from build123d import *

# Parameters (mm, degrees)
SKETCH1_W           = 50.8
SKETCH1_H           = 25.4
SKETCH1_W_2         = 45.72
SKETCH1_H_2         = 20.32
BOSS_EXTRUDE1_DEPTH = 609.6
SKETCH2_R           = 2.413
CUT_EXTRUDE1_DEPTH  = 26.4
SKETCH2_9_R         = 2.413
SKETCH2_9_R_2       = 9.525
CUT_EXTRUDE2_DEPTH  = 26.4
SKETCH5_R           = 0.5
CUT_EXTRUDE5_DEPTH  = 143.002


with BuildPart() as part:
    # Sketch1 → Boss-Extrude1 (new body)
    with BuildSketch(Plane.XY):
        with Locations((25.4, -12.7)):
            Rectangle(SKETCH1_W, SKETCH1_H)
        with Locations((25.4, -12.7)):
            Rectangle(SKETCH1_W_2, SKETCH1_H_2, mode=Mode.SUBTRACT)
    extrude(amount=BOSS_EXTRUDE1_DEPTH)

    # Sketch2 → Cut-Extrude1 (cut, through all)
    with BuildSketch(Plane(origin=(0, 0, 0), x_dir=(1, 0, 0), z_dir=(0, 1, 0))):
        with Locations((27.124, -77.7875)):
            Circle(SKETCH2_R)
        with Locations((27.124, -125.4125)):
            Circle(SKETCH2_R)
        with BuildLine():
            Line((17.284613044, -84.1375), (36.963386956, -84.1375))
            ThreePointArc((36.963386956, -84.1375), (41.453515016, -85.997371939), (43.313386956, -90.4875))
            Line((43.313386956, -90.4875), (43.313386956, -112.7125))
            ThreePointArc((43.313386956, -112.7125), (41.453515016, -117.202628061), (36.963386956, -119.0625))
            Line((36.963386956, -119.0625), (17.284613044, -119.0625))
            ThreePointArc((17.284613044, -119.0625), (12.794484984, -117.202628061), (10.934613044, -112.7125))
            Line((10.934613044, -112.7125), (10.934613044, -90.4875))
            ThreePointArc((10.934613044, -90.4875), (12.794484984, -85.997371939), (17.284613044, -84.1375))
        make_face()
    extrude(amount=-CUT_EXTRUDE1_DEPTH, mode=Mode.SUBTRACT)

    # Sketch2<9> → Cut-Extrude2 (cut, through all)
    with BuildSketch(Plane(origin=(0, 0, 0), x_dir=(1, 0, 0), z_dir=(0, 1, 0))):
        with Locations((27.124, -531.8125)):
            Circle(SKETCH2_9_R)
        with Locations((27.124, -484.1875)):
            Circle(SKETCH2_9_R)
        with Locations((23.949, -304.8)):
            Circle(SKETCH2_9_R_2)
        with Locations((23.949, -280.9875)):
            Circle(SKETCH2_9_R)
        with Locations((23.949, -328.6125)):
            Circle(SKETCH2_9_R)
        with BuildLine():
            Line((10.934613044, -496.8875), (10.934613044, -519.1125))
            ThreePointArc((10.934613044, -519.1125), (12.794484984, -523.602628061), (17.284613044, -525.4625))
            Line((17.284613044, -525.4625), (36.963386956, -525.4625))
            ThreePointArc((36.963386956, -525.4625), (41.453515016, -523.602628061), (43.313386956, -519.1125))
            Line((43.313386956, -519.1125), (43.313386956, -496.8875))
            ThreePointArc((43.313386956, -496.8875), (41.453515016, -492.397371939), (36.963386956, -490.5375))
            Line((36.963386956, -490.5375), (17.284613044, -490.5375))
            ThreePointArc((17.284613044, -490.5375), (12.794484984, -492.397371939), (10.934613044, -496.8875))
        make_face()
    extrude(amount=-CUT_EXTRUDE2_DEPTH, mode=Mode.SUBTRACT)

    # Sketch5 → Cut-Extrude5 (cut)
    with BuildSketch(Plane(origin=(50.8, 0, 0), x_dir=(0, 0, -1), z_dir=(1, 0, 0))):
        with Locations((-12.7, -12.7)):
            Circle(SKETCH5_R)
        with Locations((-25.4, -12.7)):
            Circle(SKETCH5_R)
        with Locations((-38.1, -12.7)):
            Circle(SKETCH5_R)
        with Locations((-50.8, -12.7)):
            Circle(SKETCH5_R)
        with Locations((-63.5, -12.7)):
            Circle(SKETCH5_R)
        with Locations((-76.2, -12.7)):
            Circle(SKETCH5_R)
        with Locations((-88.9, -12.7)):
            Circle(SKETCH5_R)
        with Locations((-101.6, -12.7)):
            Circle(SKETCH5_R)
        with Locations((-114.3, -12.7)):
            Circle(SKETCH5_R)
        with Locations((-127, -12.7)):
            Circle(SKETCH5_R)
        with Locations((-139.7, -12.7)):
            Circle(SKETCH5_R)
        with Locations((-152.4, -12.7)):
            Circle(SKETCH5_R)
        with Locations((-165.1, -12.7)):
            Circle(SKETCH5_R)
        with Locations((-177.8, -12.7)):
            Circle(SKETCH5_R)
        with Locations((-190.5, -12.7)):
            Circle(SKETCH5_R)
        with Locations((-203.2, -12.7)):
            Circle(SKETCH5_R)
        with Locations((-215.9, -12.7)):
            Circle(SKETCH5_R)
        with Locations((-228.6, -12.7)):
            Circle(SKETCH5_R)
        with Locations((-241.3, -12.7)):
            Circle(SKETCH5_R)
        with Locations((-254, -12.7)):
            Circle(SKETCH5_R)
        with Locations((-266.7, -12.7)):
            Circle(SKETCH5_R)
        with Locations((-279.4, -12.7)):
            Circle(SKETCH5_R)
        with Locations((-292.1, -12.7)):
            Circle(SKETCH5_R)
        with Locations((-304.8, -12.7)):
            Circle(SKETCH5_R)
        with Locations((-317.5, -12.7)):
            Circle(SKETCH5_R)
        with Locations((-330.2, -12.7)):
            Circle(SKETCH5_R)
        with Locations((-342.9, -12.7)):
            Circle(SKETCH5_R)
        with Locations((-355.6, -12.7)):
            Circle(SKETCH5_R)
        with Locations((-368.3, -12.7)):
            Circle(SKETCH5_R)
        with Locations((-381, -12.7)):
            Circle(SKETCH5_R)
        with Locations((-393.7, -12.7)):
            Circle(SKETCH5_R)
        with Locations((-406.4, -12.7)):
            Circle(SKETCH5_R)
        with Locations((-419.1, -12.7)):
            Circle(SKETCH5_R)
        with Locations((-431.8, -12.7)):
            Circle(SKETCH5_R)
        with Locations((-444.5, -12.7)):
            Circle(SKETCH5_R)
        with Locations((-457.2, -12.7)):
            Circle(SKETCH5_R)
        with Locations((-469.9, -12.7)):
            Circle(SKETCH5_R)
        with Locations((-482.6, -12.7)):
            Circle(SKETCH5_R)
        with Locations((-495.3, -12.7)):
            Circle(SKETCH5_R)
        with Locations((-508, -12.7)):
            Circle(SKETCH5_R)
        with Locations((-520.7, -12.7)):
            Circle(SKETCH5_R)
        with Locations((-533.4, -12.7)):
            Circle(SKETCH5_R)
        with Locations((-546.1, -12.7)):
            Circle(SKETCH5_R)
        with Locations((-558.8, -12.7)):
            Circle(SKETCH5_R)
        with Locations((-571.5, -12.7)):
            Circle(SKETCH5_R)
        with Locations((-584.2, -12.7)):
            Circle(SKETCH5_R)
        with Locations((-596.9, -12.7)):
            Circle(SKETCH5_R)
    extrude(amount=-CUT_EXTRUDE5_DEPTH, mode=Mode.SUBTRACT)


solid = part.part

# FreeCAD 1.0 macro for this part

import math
import FreeCAD as App
import Part
import Sketcher

V = App.Vector
Q = App.Units.Quantity


def add_polygon(sketch, points):
    """Adds a closed chain of lines whose ends are joined by coincident constraints."""
    first, n = sketch.GeometryCount, len(points)
    for a, b in zip(points, points[1:] + points[:1]):
        sketch.addGeometry(Part.LineSegment(App.Vector(*a, 0), App.Vector(*b, 0)), False)
    for i in range(n):
        sketch.addConstraint(Sketcher.Constraint("Coincident", first + i, 2, first + (i + 1) % n, 1))

doc = App.newDocument("Part")
body = doc.addObject("PartDesign::Body", "Body")

# Sketch on XY plane
sketch1 = doc.addObject("Sketcher::SketchObject", "Sketch")
body.addObject(sketch1)
sketch1.AttachmentSupport = (doc.XY_Plane, [""])
sketch1.MapMode = "FlatFace"
add_polygon(sketch1, [(0, 0), (0, -25), (51, -25), (51, 0)])  # lines 0-3
add_polygon(sketch1, [(48, -23), (3, -23), (3, -3), (48, -3)])  # lines 4-7
sketch1.addConstraint([
    Sketcher.Constraint("Vertical", 0),
    Sketcher.Constraint("Horizontal", 1),
    Sketcher.Constraint("Vertical", 2),
    Sketcher.Constraint("Horizontal", 3),
    Sketcher.Constraint("Horizontal", 4),
    Sketcher.Constraint("Vertical", 5),
    Sketcher.Constraint("Horizontal", 6),
    Sketcher.Constraint("Vertical", 7),
    Sketcher.Constraint("Coincident", 3, 2, -1, 1),
    Sketcher.Constraint("DistanceX", 1, 1, 1, 2, Q("2 in")),
    Sketcher.Constraint("DistanceY", 0, 2, 0, 1, Q("1 in")),
    Sketcher.Constraint("DistanceX", 4, 2, 4, 1, Q("1.8 in")),
    Sketcher.Constraint("DistanceY", 5, 1, 5, 2, Q("0.8 in")),
    Sketcher.Constraint("DistanceX", -1, 1, 4, 2, Q("0.1 in")),
    Sketcher.Constraint("DistanceY", 4, 2, -1, 1, Q("0.9 in")),
])
pad1 = doc.addObject("PartDesign::Pad", "Pad")
body.addObject(pad1)
pad1.Profile = sketch1
pad1.Length = Q("24 in")

# Sketch on XZ plane
sketch2 = doc.addObject("Sketcher::SketchObject", "Sketch001")
body.addObject(sketch2)
sketch2.AttachmentSupport = (doc.XZ_Plane, [""])
sketch2.MapMode = "FlatFace"
sketch2.addGeometry([
    Part.Circle(V(27.1, 77.8, 0), V(0, 0, 1), 2.4),  # 0
    Part.Circle(V(27.1, 125.4, 0), V(0, 0, 1), 2.4),  # 1
    Part.LineSegment(V(37, 84.1, 0), V(17.3, 84.1, 0)),  # 2
    Part.ArcOfCircle(Part.Circle(V(17.3, 90.5, 0), V(0, 0, 1), 6.3), math.radians(180), math.radians(270)),  # 3
    Part.LineSegment(V(10.9, 90.5, 0), V(10.9, 112.7, 0)),  # 4
    Part.ArcOfCircle(Part.Circle(V(17.3, 112.7, 0), V(0, 0, 1), 6.3), math.radians(90), math.radians(180)),  # 5
    Part.LineSegment(V(17.3, 119.1, 0), V(37, 119.1, 0)),  # 6
    Part.ArcOfCircle(Part.Circle(V(37, 112.7, 0), V(0, 0, 1), 6.3), math.radians(0), math.radians(90)),  # 7
    Part.LineSegment(V(43.3, 112.7, 0), V(43.3, 90.5, 0)),  # 8
    Part.ArcOfCircle(Part.Circle(V(37, 90.5, 0), V(0, 0, 1), 6.3), math.radians(-90), math.radians(0)),  # 9
], False)
sketch2.addConstraint([
    Sketcher.Constraint("Tangent", 2, 2, 3, 2),
    Sketcher.Constraint("Tangent", 3, 1, 4, 1),
    Sketcher.Constraint("Tangent", 4, 2, 5, 2),
    Sketcher.Constraint("Tangent", 5, 1, 6, 1),
    Sketcher.Constraint("Tangent", 6, 2, 7, 2),
    Sketcher.Constraint("Tangent", 7, 1, 8, 1),
    Sketcher.Constraint("Tangent", 8, 2, 9, 2),
    Sketcher.Constraint("Tangent", 9, 1, 2, 1),
    Sketcher.Constraint("Horizontal", 2),
    Sketcher.Constraint("Vertical", 4),
    Sketcher.Constraint("Horizontal", 6),
    Sketcher.Constraint("Vertical", 8),
    Sketcher.Constraint("Equal", 0, 1),
    Sketcher.Constraint("Equal", 3, 5),
    Sketcher.Constraint("Equal", 5, 7),
    Sketcher.Constraint("Equal", 7, 9),
    Sketcher.Constraint("Vertical", 0, 3, 1, 3),
    Sketcher.Constraint("Diameter", 0, Q("0.19 in")),
    Sketcher.Constraint("Radius", 3, Q("0.25 in")),
    Sketcher.Constraint("DistanceY", 0, 3, 3, 3, Q("0.5 in")),
    Sketcher.Constraint("DistanceY", 5, 3, 1, 3, Q("0.5 in")),
    Sketcher.Constraint("DistanceY", 4, 1, 4, 2, Q("0.875 in")),
    Sketcher.Constraint("DistanceY", -1, 1, 0, 3, Q("3.0625 in")),
    Sketcher.Constraint("DistanceX", -1, 1, 0, 3, 27.124),
    Sketcher.Constraint("DistanceX", 2, 2, 2, 1, 19.678774),
    Sketcher.Constraint("DistanceX", -1, 1, 3, 3, 17.284613),
])
pocket1 = doc.addObject("PartDesign::Pocket", "Pocket")
body.addObject(pocket1)
pocket1.Profile = sketch2
pocket1.Type = "ThroughAll"
pocket1.Reversed = True

# Sketch on XZ plane
sketch3 = doc.addObject("Sketcher::SketchObject", "Sketch002")
body.addObject(sketch3)
sketch3.AttachmentSupport = (doc.XZ_Plane, [""])
sketch3.MapMode = "FlatFace"
sketch3.addGeometry([
    Part.Circle(V(27.1, 531.8, 0), V(0, 0, 1), 2.4),  # 0
    Part.Circle(V(27.1, 484.2, 0), V(0, 0, 1), 2.4),  # 1
    Part.Circle(V(23.9, 304.8, 0), V(0, 0, 1), 9.5),  # 2
    Part.Circle(V(23.9, 281, 0), V(0, 0, 1), 2.4),  # 3
    Part.Circle(V(23.9, 328.6, 0), V(0, 0, 1), 2.4),  # 4
    Part.LineSegment(V(10.9, 496.9, 0), V(10.9, 519.1, 0)),  # 5
    Part.ArcOfCircle(Part.Circle(V(17.3, 519.1, 0), V(0, 0, 1), 6.3), math.radians(90), math.radians(180)),  # 6
    Part.LineSegment(V(17.3, 525.5, 0), V(37, 525.5, 0)),  # 7
    Part.ArcOfCircle(Part.Circle(V(37, 519.1, 0), V(0, 0, 1), 6.3), math.radians(0), math.radians(90)),  # 8
    Part.LineSegment(V(43.3, 519.1, 0), V(43.3, 496.9, 0)),  # 9
    Part.ArcOfCircle(Part.Circle(V(37, 496.9, 0), V(0, 0, 1), 6.3), math.radians(-90), math.radians(0)),  # 10
    Part.LineSegment(V(37, 490.5, 0), V(17.3, 490.5, 0)),  # 11
    Part.ArcOfCircle(Part.Circle(V(17.3, 496.9, 0), V(0, 0, 1), 6.3), math.radians(180), math.radians(270)),  # 12
], False)
sketch3.addConstraint([
    Sketcher.Constraint("Tangent", 5, 2, 6, 2),
    Sketcher.Constraint("Tangent", 6, 1, 7, 1),
    Sketcher.Constraint("Tangent", 7, 2, 8, 2),
    Sketcher.Constraint("Tangent", 8, 1, 9, 1),
    Sketcher.Constraint("Tangent", 9, 2, 10, 2),
    Sketcher.Constraint("Tangent", 10, 1, 11, 1),
    Sketcher.Constraint("Tangent", 11, 2, 12, 2),
    Sketcher.Constraint("Tangent", 12, 1, 5, 1),
    Sketcher.Constraint("Vertical", 5),
    Sketcher.Constraint("Horizontal", 7),
    Sketcher.Constraint("Vertical", 9),
    Sketcher.Constraint("Horizontal", 11),
    Sketcher.Constraint("Equal", 0, 1),
    Sketcher.Constraint("Equal", 1, 3),
    Sketcher.Constraint("Equal", 3, 4),
    Sketcher.Constraint("Equal", 6, 8),
    Sketcher.Constraint("Equal", 8, 10),
    Sketcher.Constraint("Equal", 10, 12),
    Sketcher.Constraint("Vertical", 0, 3, 1, 3),
    Sketcher.Constraint("Vertical", 2, 3, 3, 3),
    Sketcher.Constraint("Vertical", 3, 3, 4, 3),
    Sketcher.Constraint("Diameter", 0, Q("0.19 in")),
    Sketcher.Constraint("Diameter", 2, Q("0.75 in")),
    Sketcher.Constraint("Radius", 6, Q("0.25 in")),
    Sketcher.Constraint("DistanceY", -1, 1, 2, 3, Q("12 in")),
    Sketcher.Constraint("DistanceY", 3, 3, 1, 3, Q("8 in")),
    Sketcher.Constraint("DistanceY", 4, 3, 0, 3, Q("8 in")),
    Sketcher.Constraint("DistanceY", 6, 3, 0, 3, Q("0.5 in")),
    Sketcher.Constraint("DistanceY", 1, 3, 10, 3, Q("0.5 in")),
    Sketcher.Constraint("DistanceY", 5, 1, 5, 2, Q("0.875 in")),
    Sketcher.Constraint("DistanceY", -1, 1, 0, 3, Q("20.9375 in")),
    Sketcher.Constraint("DistanceX", 2, 3, 1, 3, Q("0.125 in")),
    Sketcher.Constraint("DistanceX", -1, 1, 0, 3, 27.124),
    Sketcher.Constraint("DistanceX", 7, 1, 7, 2, 19.678774),
    Sketcher.Constraint("DistanceX", -1, 1, 6, 3, 17.284613),
])
pocket2 = doc.addObject("PartDesign::Pocket", "Pocket001")
body.addObject(pocket2)
pocket2.Profile = sketch3
pocket2.Type = "ThroughAll"
pocket2.Reversed = True

# Sketch on YZ plane
sketch4 = doc.addObject("Sketcher::SketchObject", "Sketch003")
body.addObject(sketch4)
sketch4.AttachmentSupport = (doc.YZ_Plane, [""])
sketch4.MapMode = "FlatFace"
sketch4.AttachmentOffset = App.Placement(V(0, 0, 2 * 25.4), App.Rotation())
sketch4.addGeometry([
    Part.Circle(V(-12.7, 12.7, 0), V(0, 0, 1), 0.5),  # 0
    Part.Circle(V(-12.7, 25.4, 0), V(0, 0, 1), 0.5),  # 1
    Part.Circle(V(-12.7, 38.1, 0), V(0, 0, 1), 0.5),  # 2
    Part.Circle(V(-12.7, 50.8, 0), V(0, 0, 1), 0.5),  # 3
    Part.Circle(V(-12.7, 63.5, 0), V(0, 0, 1), 0.5),  # 4
    Part.Circle(V(-12.7, 76.2, 0), V(0, 0, 1), 0.5),  # 5
    Part.Circle(V(-12.7, 88.9, 0), V(0, 0, 1), 0.5),  # 6
    Part.Circle(V(-12.7, 101.6, 0), V(0, 0, 1), 0.5),  # 7
    Part.Circle(V(-12.7, 114.3, 0), V(0, 0, 1), 0.5),  # 8
    Part.Circle(V(-12.7, 127, 0), V(0, 0, 1), 0.5),  # 9
    Part.Circle(V(-12.7, 139.7, 0), V(0, 0, 1), 0.5),  # 10
    Part.Circle(V(-12.7, 152.4, 0), V(0, 0, 1), 0.5),  # 11
    Part.Circle(V(-12.7, 165.1, 0), V(0, 0, 1), 0.5),  # 12
    Part.Circle(V(-12.7, 177.8, 0), V(0, 0, 1), 0.5),  # 13
    Part.Circle(V(-12.7, 190.5, 0), V(0, 0, 1), 0.5),  # 14
    Part.Circle(V(-12.7, 203.2, 0), V(0, 0, 1), 0.5),  # 15
    Part.Circle(V(-12.7, 215.9, 0), V(0, 0, 1), 0.5),  # 16
    Part.Circle(V(-12.7, 228.6, 0), V(0, 0, 1), 0.5),  # 17
    Part.Circle(V(-12.7, 241.3, 0), V(0, 0, 1), 0.5),  # 18
    Part.Circle(V(-12.7, 254, 0), V(0, 0, 1), 0.5),  # 19
    Part.Circle(V(-12.7, 266.7, 0), V(0, 0, 1), 0.5),  # 20
    Part.Circle(V(-12.7, 279.4, 0), V(0, 0, 1), 0.5),  # 21
    Part.Circle(V(-12.7, 292.1, 0), V(0, 0, 1), 0.5),  # 22
    Part.Circle(V(-12.7, 304.8, 0), V(0, 0, 1), 0.5),  # 23
    Part.Circle(V(-12.7, 317.5, 0), V(0, 0, 1), 0.5),  # 24
    Part.Circle(V(-12.7, 330.2, 0), V(0, 0, 1), 0.5),  # 25
    Part.Circle(V(-12.7, 342.9, 0), V(0, 0, 1), 0.5),  # 26
    Part.Circle(V(-12.7, 355.6, 0), V(0, 0, 1), 0.5),  # 27
    Part.Circle(V(-12.7, 368.3, 0), V(0, 0, 1), 0.5),  # 28
    Part.Circle(V(-12.7, 381, 0), V(0, 0, 1), 0.5),  # 29
    Part.Circle(V(-12.7, 393.7, 0), V(0, 0, 1), 0.5),  # 30
    Part.Circle(V(-12.7, 406.4, 0), V(0, 0, 1), 0.5),  # 31
    Part.Circle(V(-12.7, 419.1, 0), V(0, 0, 1), 0.5),  # 32
    Part.Circle(V(-12.7, 431.8, 0), V(0, 0, 1), 0.5),  # 33
    Part.Circle(V(-12.7, 444.5, 0), V(0, 0, 1), 0.5),  # 34
    Part.Circle(V(-12.7, 457.2, 0), V(0, 0, 1), 0.5),  # 35
    Part.Circle(V(-12.7, 469.9, 0), V(0, 0, 1), 0.5),  # 36
    Part.Circle(V(-12.7, 482.6, 0), V(0, 0, 1), 0.5),  # 37
    Part.Circle(V(-12.7, 495.3, 0), V(0, 0, 1), 0.5),  # 38
    Part.Circle(V(-12.7, 508, 0), V(0, 0, 1), 0.5),  # 39
    Part.Circle(V(-12.7, 520.7, 0), V(0, 0, 1), 0.5),  # 40
    Part.Circle(V(-12.7, 533.4, 0), V(0, 0, 1), 0.5),  # 41
    Part.Circle(V(-12.7, 546.1, 0), V(0, 0, 1), 0.5),  # 42
    Part.Circle(V(-12.7, 558.8, 0), V(0, 0, 1), 0.5),  # 43
    Part.Circle(V(-12.7, 571.5, 0), V(0, 0, 1), 0.5),  # 44
    Part.Circle(V(-12.7, 584.2, 0), V(0, 0, 1), 0.5),  # 45
    Part.Circle(V(-12.7, 596.9, 0), V(0, 0, 1), 0.5),  # 46
], False)
sketch4.addConstraint([
    Sketcher.Constraint("Equal", 0, 1),
    Sketcher.Constraint("Equal", 1, 2),
    Sketcher.Constraint("Equal", 2, 3),
    Sketcher.Constraint("Equal", 3, 4),
    Sketcher.Constraint("Equal", 4, 5),
    Sketcher.Constraint("Equal", 5, 6),
    Sketcher.Constraint("Equal", 6, 7),
    Sketcher.Constraint("Equal", 7, 8),
    Sketcher.Constraint("Equal", 8, 9),
    Sketcher.Constraint("Equal", 9, 10),
    Sketcher.Constraint("Equal", 10, 11),
    Sketcher.Constraint("Equal", 11, 12),
    Sketcher.Constraint("Equal", 12, 13),
    Sketcher.Constraint("Equal", 13, 14),
    Sketcher.Constraint("Equal", 14, 15),
    Sketcher.Constraint("Equal", 15, 16),
    Sketcher.Constraint("Equal", 16, 17),
    Sketcher.Constraint("Equal", 17, 18),
    Sketcher.Constraint("Equal", 18, 19),
    Sketcher.Constraint("Equal", 19, 20),
    Sketcher.Constraint("Equal", 20, 21),
    Sketcher.Constraint("Equal", 21, 22),
    Sketcher.Constraint("Equal", 22, 23),
    Sketcher.Constraint("Equal", 23, 24),
    Sketcher.Constraint("Equal", 24, 25),
    Sketcher.Constraint("Equal", 25, 26),
    Sketcher.Constraint("Equal", 26, 27),
    Sketcher.Constraint("Equal", 27, 28),
    Sketcher.Constraint("Equal", 28, 29),
    Sketcher.Constraint("Equal", 29, 30),
    Sketcher.Constraint("Equal", 30, 31),
    Sketcher.Constraint("Equal", 31, 32),
    Sketcher.Constraint("Equal", 32, 33),
    Sketcher.Constraint("Equal", 33, 34),
    Sketcher.Constraint("Equal", 34, 35),
    Sketcher.Constraint("Equal", 35, 36),
    Sketcher.Constraint("Equal", 36, 37),
    Sketcher.Constraint("Equal", 37, 38),
    Sketcher.Constraint("Equal", 38, 39),
    Sketcher.Constraint("Equal", 39, 40),
    Sketcher.Constraint("Equal", 40, 41),
    Sketcher.Constraint("Equal", 41, 42),
    Sketcher.Constraint("Equal", 42, 43),
    Sketcher.Constraint("Equal", 43, 44),
    Sketcher.Constraint("Equal", 44, 45),
    Sketcher.Constraint("Equal", 45, 46),
    Sketcher.Constraint("Vertical", 0, 3, 1, 3),
    Sketcher.Constraint("Vertical", 1, 3, 2, 3),
    Sketcher.Constraint("Vertical", 2, 3, 3, 3),
    Sketcher.Constraint("Vertical", 3, 3, 4, 3),
    Sketcher.Constraint("Vertical", 4, 3, 5, 3),
    Sketcher.Constraint("Vertical", 5, 3, 6, 3),
    Sketcher.Constraint("Vertical", 6, 3, 7, 3),
    Sketcher.Constraint("Vertical", 7, 3, 8, 3),
    Sketcher.Constraint("Vertical", 8, 3, 9, 3),
    Sketcher.Constraint("Vertical", 9, 3, 10, 3),
    Sketcher.Constraint("Vertical", 10, 3, 11, 3),
    Sketcher.Constraint("Vertical", 11, 3, 12, 3),
    Sketcher.Constraint("Vertical", 12, 3, 13, 3),
    Sketcher.Constraint("Vertical", 13, 3, 14, 3),
    Sketcher.Constraint("Vertical", 14, 3, 15, 3),
    Sketcher.Constraint("Vertical", 15, 3, 16, 3),
    Sketcher.Constraint("Vertical", 16, 3, 17, 3),
    Sketcher.Constraint("Vertical", 17, 3, 18, 3),
    Sketcher.Constraint("Vertical", 18, 3, 19, 3),
    Sketcher.Constraint("Vertical", 19, 3, 20, 3),
    Sketcher.Constraint("Vertical", 20, 3, 21, 3),
    Sketcher.Constraint("Vertical", 21, 3, 22, 3),
    Sketcher.Constraint("Vertical", 22, 3, 23, 3),
    Sketcher.Constraint("Vertical", 23, 3, 24, 3),
    Sketcher.Constraint("Vertical", 24, 3, 25, 3),
    Sketcher.Constraint("Vertical", 25, 3, 26, 3),
    Sketcher.Constraint("Vertical", 26, 3, 27, 3),
    Sketcher.Constraint("Vertical", 27, 3, 28, 3),
    Sketcher.Constraint("Vertical", 28, 3, 29, 3),
    Sketcher.Constraint("Vertical", 29, 3, 30, 3),
    Sketcher.Constraint("Vertical", 30, 3, 31, 3),
    Sketcher.Constraint("Vertical", 31, 3, 32, 3),
    Sketcher.Constraint("Vertical", 32, 3, 33, 3),
    Sketcher.Constraint("Vertical", 33, 3, 34, 3),
    Sketcher.Constraint("Vertical", 34, 3, 35, 3),
    Sketcher.Constraint("Vertical", 35, 3, 36, 3),
    Sketcher.Constraint("Vertical", 36, 3, 37, 3),
    Sketcher.Constraint("Vertical", 37, 3, 38, 3),
    Sketcher.Constraint("Vertical", 38, 3, 39, 3),
    Sketcher.Constraint("Vertical", 39, 3, 40, 3),
    Sketcher.Constraint("Vertical", 40, 3, 41, 3),
    Sketcher.Constraint("Vertical", 41, 3, 42, 3),
    Sketcher.Constraint("Vertical", 42, 3, 43, 3),
    Sketcher.Constraint("Vertical", 43, 3, 44, 3),
    Sketcher.Constraint("Vertical", 44, 3, 45, 3),
    Sketcher.Constraint("Vertical", 45, 3, 46, 3),
    Sketcher.Constraint("DistanceY", -1, 1, 1, 3, Q("1 in")),
    Sketcher.Constraint("DistanceY", -1, 1, 3, 3, Q("2 in")),
    Sketcher.Constraint("DistanceY", -1, 1, 5, 3, Q("3 in")),
    Sketcher.Constraint("DistanceY", -1, 1, 7, 3, Q("4 in")),
    Sketcher.Constraint("DistanceY", -1, 1, 9, 3, Q("5 in")),
    Sketcher.Constraint("DistanceY", -1, 1, 11, 3, Q("6 in")),
    Sketcher.Constraint("DistanceY", -1, 1, 13, 3, Q("7 in")),
    Sketcher.Constraint("DistanceY", -1, 1, 15, 3, Q("8 in")),
    Sketcher.Constraint("DistanceY", -1, 1, 17, 3, Q("9 in")),
    Sketcher.Constraint("DistanceY", -1, 1, 19, 3, Q("10 in")),
    Sketcher.Constraint("DistanceY", -1, 1, 21, 3, Q("11 in")),
    Sketcher.Constraint("DistanceY", -1, 1, 23, 3, Q("12 in")),
    Sketcher.Constraint("DistanceY", -1, 1, 25, 3, Q("13 in")),
    Sketcher.Constraint("DistanceY", -1, 1, 27, 3, Q("14 in")),
    Sketcher.Constraint("DistanceY", -1, 1, 29, 3, Q("15 in")),
    Sketcher.Constraint("DistanceY", -1, 1, 31, 3, Q("16 in")),
    Sketcher.Constraint("DistanceY", -1, 1, 33, 3, Q("17 in")),
    Sketcher.Constraint("DistanceY", -1, 1, 35, 3, Q("18 in")),
    Sketcher.Constraint("DistanceY", -1, 1, 37, 3, Q("19 in")),
    Sketcher.Constraint("DistanceY", -1, 1, 39, 3, Q("20 in")),
    Sketcher.Constraint("DistanceY", -1, 1, 41, 3, Q("21 in")),
    Sketcher.Constraint("DistanceY", -1, 1, 43, 3, Q("22 in")),
    Sketcher.Constraint("DistanceY", -1, 1, 45, 3, Q("23 in")),
    Sketcher.Constraint("DistanceY", 0, 3, 2, 3, Q("1 in")),
    Sketcher.Constraint("DistanceY", 2, 3, 4, 3, Q("1 in")),
    Sketcher.Constraint("DistanceY", 4, 3, 6, 3, Q("1 in")),
    Sketcher.Constraint("DistanceY", 6, 3, 8, 3, Q("1 in")),
    Sketcher.Constraint("DistanceY", 8, 3, 10, 3, Q("1 in")),
    Sketcher.Constraint("DistanceY", 10, 3, 12, 3, Q("1 in")),
    Sketcher.Constraint("DistanceY", 12, 3, 14, 3, Q("1 in")),
    Sketcher.Constraint("DistanceY", 14, 3, 16, 3, Q("1 in")),
    Sketcher.Constraint("DistanceY", 16, 3, 18, 3, Q("1 in")),
    Sketcher.Constraint("DistanceY", 18, 3, 20, 3, Q("1 in")),
    Sketcher.Constraint("DistanceY", 20, 3, 22, 3, Q("1 in")),
    Sketcher.Constraint("DistanceY", 22, 3, 24, 3, Q("1 in")),
    Sketcher.Constraint("DistanceY", 24, 3, 26, 3, Q("1 in")),
    Sketcher.Constraint("DistanceY", 26, 3, 28, 3, Q("1 in")),
    Sketcher.Constraint("DistanceY", 28, 3, 30, 3, Q("1 in")),
    Sketcher.Constraint("DistanceY", 30, 3, 32, 3, Q("1 in")),
    Sketcher.Constraint("DistanceY", 32, 3, 34, 3, Q("1 in")),
    Sketcher.Constraint("DistanceY", 34, 3, 36, 3, Q("1 in")),
    Sketcher.Constraint("DistanceY", 36, 3, 38, 3, Q("1 in")),
    Sketcher.Constraint("DistanceY", 38, 3, 40, 3, Q("1 in")),
    Sketcher.Constraint("DistanceY", 40, 3, 42, 3, Q("1 in")),
    Sketcher.Constraint("DistanceY", 42, 3, 44, 3, Q("1 in")),
    Sketcher.Constraint("DistanceY", 44, 3, 46, 3, Q("1 in")),
    Sketcher.Constraint("DistanceX", 0, 3, -1, 1, Q("0.5 in")),
    Sketcher.Constraint("DistanceY", -1, 1, 0, 3, Q("0.5 in")),
    Sketcher.Constraint("Diameter", 0, 1.0),
])
pocket3 = doc.addObject("PartDesign::Pocket", "Pocket002")
body.addObject(pocket3)
pocket3.Profile = sketch4
pocket3.Length = Q("5.63 in")

doc.recompute()
